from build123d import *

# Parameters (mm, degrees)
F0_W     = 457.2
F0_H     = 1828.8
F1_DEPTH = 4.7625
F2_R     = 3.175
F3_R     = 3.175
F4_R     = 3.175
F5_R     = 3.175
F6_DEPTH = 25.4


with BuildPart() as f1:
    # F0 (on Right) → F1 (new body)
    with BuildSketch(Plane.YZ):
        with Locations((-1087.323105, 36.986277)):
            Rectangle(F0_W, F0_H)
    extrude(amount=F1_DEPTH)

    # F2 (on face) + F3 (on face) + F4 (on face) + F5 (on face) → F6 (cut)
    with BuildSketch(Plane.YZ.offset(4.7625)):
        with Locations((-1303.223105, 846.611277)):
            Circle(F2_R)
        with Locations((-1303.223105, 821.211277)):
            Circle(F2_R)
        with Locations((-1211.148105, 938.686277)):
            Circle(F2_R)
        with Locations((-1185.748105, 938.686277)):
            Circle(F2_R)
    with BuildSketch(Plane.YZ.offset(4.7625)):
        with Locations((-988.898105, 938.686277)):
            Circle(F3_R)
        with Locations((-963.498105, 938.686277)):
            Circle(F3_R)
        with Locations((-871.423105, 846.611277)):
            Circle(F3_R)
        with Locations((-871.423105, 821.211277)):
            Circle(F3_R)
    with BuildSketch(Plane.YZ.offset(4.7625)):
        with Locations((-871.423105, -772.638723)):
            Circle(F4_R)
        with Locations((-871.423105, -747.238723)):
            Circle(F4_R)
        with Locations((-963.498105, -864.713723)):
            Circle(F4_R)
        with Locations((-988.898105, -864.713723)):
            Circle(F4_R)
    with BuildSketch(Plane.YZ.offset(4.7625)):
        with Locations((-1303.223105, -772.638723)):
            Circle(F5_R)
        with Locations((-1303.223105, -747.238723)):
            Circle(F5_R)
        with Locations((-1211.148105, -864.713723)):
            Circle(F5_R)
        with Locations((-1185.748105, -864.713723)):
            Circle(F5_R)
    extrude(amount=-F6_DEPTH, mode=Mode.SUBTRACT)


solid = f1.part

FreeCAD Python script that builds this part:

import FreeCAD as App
import Part
import Sketcher

V = App.Vector
Q = App.Units.Quantity


def add_polygon(sketch, points):
    """Adds a closed chain of lines whose ends are joined by coincident constraints."""
    first, n = sketch.GeometryCount, len(points)
    for a, b in zip(points, points[1:] + points[:1]):
        sketch.addGeometry(Part.LineSegment(App.Vector(*a, 0), App.Vector(*b, 0)), False)
    for i in range(n):
        sketch.addConstraint(Sketcher.Constraint("Coincident", first + i, 2, first + (i + 1) % n, 1))

doc = App.newDocument("Part")
body = doc.addObject("PartDesign::Body", "Body")

# Sketch on YZ plane
sketch1 = body.newObject("Sketcher::SketchObject", "Sketch")
sketch1.AttachmentSupport = (doc.getObject("YZ_Plane"), [""])
sketch1.MapMode = "FlatFace"
add_polygon(sketch1, [(-1316, 951), (-1316, -877), (-859, -877), (-859, 951)])  # lines 0-3
sketch1.addConstraint([
    Sketcher.Constraint("Vertical", 0),
    Sketcher.Constraint("Horizontal", 1),
    Sketcher.Constraint("Vertical", 2),
    Sketcher.Constraint("Horizontal", 3),
    Sketcher.Constraint("DistanceX", 1, 1, 1, 2, Q("18 in")),
    Sketcher.Constraint("DistanceY", 0, 2, 0, 1, Q("72 in")),
    Sketcher.Constraint("DistanceX", 0, 2, -1, 1, 1315.923105),
    Sketcher.Constraint("DistanceY", 0, 2, -1, 1, 877.413723),
])
pad1 = body.newObject("PartDesign::Pad", "Pad")
pad1.Profile = sketch1
pad1.Length = Q("0.1875 in")

# Sketch on YZ plane
sketch2 = body.newObject("Sketcher::SketchObject", "Sketch001")
sketch2.AttachmentSupport = (doc.getObject("YZ_Plane"), [""])
sketch2.MapMode = "FlatFace"
sketch2.AttachmentOffset = App.Placement(V(0, 0, 0.1875 * 25.4), App.Rotation())
sketch2.addGeometry([
    Part.Circle(V(-1303.2, 846.6, 0), V(0, 0, 1), 3.2),  # 0
    Part.Circle(V(-1303.2, 821.2, 0), V(0, 0, 1), 3.2),  # 1
    Part.Circle(V(-1211.1, 938.7, 0), V(0, 0, 1), 3.2),  # 2
    Part.Circle(V(-1185.7, 938.7, 0), V(0, 0, 1), 3.2),  # 3
    Part.Circle(V(-988.9, 938.7, 0), V(0, 0, 1), 3.2),  # 4
    Part.Circle(V(-963.5, 938.7, 0), V(0, 0, 1), 3.2),  # 5
    Part.Circle(V(-871.4, 846.6, 0), V(0, 0, 1), 3.2),  # 6
    Part.Circle(V(-871.4, 821.2, 0), V(0, 0, 1), 3.2),  # 7
    Part.Circle(V(-871.4, -772.6, 0), V(0, 0, 1), 3.2),  # 8
    Part.Circle(V(-871.4, -747.2, 0), V(0, 0, 1), 3.2),  # 9
    Part.Circle(V(-963.5, -864.7, 0), V(0, 0, 1), 3.2),  # 10
    Part.Circle(V(-988.9, -864.7, 0), V(0, 0, 1), 3.2),  # 11
    Part.Circle(V(-1303.2, -772.6, 0), V(0, 0, 1), 3.2),  # 12
    Part.Circle(V(-1303.2, -747.2, 0), V(0, 0, 1), 3.2),  # 13
    Part.Circle(V(-1211.1, -864.7, 0), V(0, 0, 1), 3.2),  # 14
    Part.Circle(V(-1185.7, -864.7, 0), V(0, 0, 1), 3.2),  # 15
], False)
sketch2.addConstraint([
    Sketcher.Constraint("Equal", 0, 1),
    Sketcher.Constraint("Equal", 1, 2),
    Sketcher.Constraint("Equal", 2, 3),
    Sketcher.Constraint("Equal", 3, 4),
    Sketcher.Constraint("Equal", 4, 5),
    Sketcher.Constraint("Equal", 5, 6),
    Sketcher.Constraint("Equal", 6, 7),
    Sketcher.Constraint("Equal", 7, 8),
    Sketcher.Constraint("Equal", 8, 9),
    Sketcher.Constraint("Equal", 9, 10),
    Sketcher.Constraint("Equal", 10, 11),
    Sketcher.Constraint("Equal", 11, 12),
    Sketcher.Constraint("Equal", 12, 13),
    Sketcher.Constraint("Equal", 13, 14),
    Sketcher.Constraint("Equal", 14, 15),
    Sketcher.Constraint("Horizontal", 2, 3, 3, 3),
    Sketcher.Constraint("Horizontal", 3, 3, 4, 3),
    Sketcher.Constraint("Horizontal", 4, 3, 5, 3),
    Sketcher.Constraint("Horizontal", 0, 3, 6, 3),
    Sketcher.Constraint("Horizontal", 1, 3, 7, 3),
    Sketcher.Constraint("Horizontal", 10, 3, 11, 3),
    Sketcher.Constraint("Horizontal", 8, 3, 12, 3),
    Sketcher.Constraint("Horizontal", 9, 3, 13, 3),
    Sketcher.Constraint("Horizontal", 11, 3, 14, 3),
    Sketcher.Constraint("Horizontal", 14, 3, 15, 3),
    Sketcher.Constraint("Vertical", 0, 3, 1, 3),
    Sketcher.Constraint("Vertical", 6, 3, 7, 3),
    Sketcher.Constraint("Vertical", 7, 3, 8, 3),
    Sketcher.Constraint("Vertical", 8, 3, 9, 3),
    Sketcher.Constraint("Vertical", 5, 3, 10, 3),
    Sketcher.Constraint("Vertical", 4, 3, 11, 3),
    Sketcher.Constraint("Vertical", 1, 3, 12, 3),
    Sketcher.Constraint("Vertical", 12, 3, 13, 3),
    Sketcher.Constraint("Vertical", 2, 3, 14, 3),
    Sketcher.Constraint("Vertical", 3, 3, 15, 3),
    Sketcher.Constraint("Diameter", 0, Q("0.25 in")),
    Sketcher.Constraint("DistanceY", 1, 3, 0, 3, Q("1 in")),
    Sketcher.Constraint("DistanceX", 2, 3, 3, 3, Q("1 in")),
    Sketcher.Constraint("DistanceX", 4, 3, 5, 3, Q("1 in")),
    Sketcher.Constraint("DistanceX", 0, 3, 6, 3, Q("17 in")),
    Sketcher.Constraint("DistanceY", 8, 3, 9, 3, Q("1 in")),
    Sketcher.Constraint("DistanceX", 3, 3, 4, 3, Q("7.75 in")),
    Sketcher.Constraint("DistanceY", 8, 3, 7, 3, Q("62.75 in")),
    Sketcher.Constraint("DistanceX", 0, 3, 2, 3, Q("3.625 in")),
    Sketcher.Constraint("DistanceY", 0, 3, 2, 3, Q("3.625 in")),
    Sketcher.Constraint("DistanceY", 10, 3, 8, 3, Q("3.625 in")),
    Sketcher.Constraint("DistanceX", 0, 3, -1, 1, 1303.223105),
    Sketcher.Constraint("DistanceY", -1, 1, 0, 3, 846.611277),
])
pocket1 = body.newObject("PartDesign::Pocket", "Pocket")
pocket1.Profile = sketch2
pocket1.Length = Q("1 in")

doc.recompute()
